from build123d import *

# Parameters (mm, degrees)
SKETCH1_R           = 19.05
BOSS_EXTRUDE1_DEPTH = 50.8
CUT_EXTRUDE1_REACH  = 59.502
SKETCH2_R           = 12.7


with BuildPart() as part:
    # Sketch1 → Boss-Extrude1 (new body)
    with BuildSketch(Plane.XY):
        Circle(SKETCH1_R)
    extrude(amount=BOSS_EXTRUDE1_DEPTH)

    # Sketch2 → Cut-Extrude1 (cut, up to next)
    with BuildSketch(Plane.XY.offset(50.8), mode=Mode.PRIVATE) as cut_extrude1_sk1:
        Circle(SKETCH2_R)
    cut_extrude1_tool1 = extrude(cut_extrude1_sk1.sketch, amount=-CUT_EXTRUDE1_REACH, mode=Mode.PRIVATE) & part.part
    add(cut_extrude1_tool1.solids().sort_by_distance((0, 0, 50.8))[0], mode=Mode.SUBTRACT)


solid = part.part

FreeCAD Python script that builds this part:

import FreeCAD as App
import Part
import Sketcher
from FreeCAD import Vector
Q = App.Units.Quantity

doc = App.newDocument("Part")
body = doc.addObject("PartDesign::Body", "Body")

# Sketch on XY plane
sketch1 = body.newObject("Sketcher::SketchObject", "Sketch")
sketch1.AttachmentSupport = (doc.getObject("XY_Plane"), [""])
sketch1.MapMode = "FlatFace"
sketch1.addGeometry(Part.Circle(Vector(0, 0, 0), Vector(0, 0, 1), 19), False)
sketch1.addConstraint([
    Sketcher.Constraint("Coincident", 0, 3, -1, 1),
    Sketcher.Constraint("Diameter", 0, Q("1.5 in")),
])
pad1 = body.newObject("PartDesign::Pad", "Pad")
pad1.Profile = sketch1
pad1.Length = Q("2 in")

# Sketch on XY plane
sketch2 = body.newObject("Sketcher::SketchObject", "Sketch001")
sketch2.AttachmentSupport = (doc.getObject("XY_Plane"), [""])
sketch2.MapMode = "FlatFace"
sketch2.AttachmentOffset = App.Placement(Vector(0, 0, 2 * 25.4), App.Rotation())
sketch2.addGeometry(Part.Circle(Vector(0, 0, 0), Vector(0, 0, 1), 13), False)
sketch2.addConstraint([
    Sketcher.Constraint("Coincident", 0, 3, -1, 1),
    Sketcher.Constraint("Diameter", 0, Q("1 in")),
])
pocket1 = body.newObject("PartDesign::Pocket", "Pocket")
pocket1.Profile = sketch2
pocket1.Type = "UpToFirst"

doc.recompute()
